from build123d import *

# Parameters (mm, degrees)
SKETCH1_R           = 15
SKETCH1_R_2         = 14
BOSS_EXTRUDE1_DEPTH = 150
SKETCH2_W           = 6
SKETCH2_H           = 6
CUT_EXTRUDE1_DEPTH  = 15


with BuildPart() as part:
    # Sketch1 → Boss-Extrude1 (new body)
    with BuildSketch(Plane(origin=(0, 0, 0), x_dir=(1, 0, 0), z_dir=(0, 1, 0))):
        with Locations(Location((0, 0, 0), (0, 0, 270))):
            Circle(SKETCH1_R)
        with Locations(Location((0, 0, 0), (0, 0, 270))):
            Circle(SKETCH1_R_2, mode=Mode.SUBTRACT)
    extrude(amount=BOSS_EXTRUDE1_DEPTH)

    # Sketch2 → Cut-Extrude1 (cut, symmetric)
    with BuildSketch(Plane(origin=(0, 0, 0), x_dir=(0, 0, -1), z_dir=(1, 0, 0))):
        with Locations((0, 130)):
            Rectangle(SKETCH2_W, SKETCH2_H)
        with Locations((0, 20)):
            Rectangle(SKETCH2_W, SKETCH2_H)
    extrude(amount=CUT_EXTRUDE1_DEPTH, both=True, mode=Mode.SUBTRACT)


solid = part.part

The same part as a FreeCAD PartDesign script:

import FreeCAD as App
import Part
import Sketcher
from FreeCAD import Vector

doc = App.newDocument("Part")
body = doc.addObject("PartDesign::Body", "Body")

sketch1 = body.newObject("Sketcher::SketchObject", "Sketch")
sketch1.AttachmentSupport = (doc.getObject("XZ_Plane"), [""])
sketch1.MapMode = "FlatFace"
sketch1.addGeometry([
    Part.Circle(Vector(0, 0, 0), Vector(0, 0, 1), 15),
    Part.Circle(Vector(0, 0, 0), Vector(0, 0, 1), 14),
], False)
sketch1.addConstraint([
    Sketcher.Constraint("Coincident", 0, 3, -1, 1),
    Sketcher.Constraint("Coincident", 1, 3, -1, 1),
    Sketcher.Constraint("Diameter", 0, 30.0),
    Sketcher.Constraint("Diameter", 1, 28.0),
])
pad1 = body.newObject("PartDesign::Pad", "Pad")
pad1.Profile = sketch1
pad1.Length = 150
pad1.Reversed = True

sketch2 = body.newObject("Sketcher::SketchObject", "Sketch001")
sketch2.AttachmentSupport = (doc.getObject("YZ_Plane"), [""])
sketch2.MapMode = "FlatFace"
sketch2.addGeometry([
    Part.LineSegment(Vector(133, 3, 0), Vector(127, 3, 0)),
    Part.LineSegment(Vector(127, 3, 0), Vector(127, -3, 0)),
    Part.LineSegment(Vector(127, -3, 0), Vector(133, -3, 0)),
    Part.LineSegment(Vector(133, -3, 0), Vector(133, 3, 0)),
    Part.LineSegment(Vector(23, 3, 0), Vector(17, 3, 0)),
    Part.LineSegment(Vector(17, 3, 0), Vector(17, -3, 0)),
    Part.LineSegment(Vector(17, -3, 0), Vector(23, -3, 0)),
    Part.LineSegment(Vector(23, -3, 0), Vector(23, 3, 0)),
], False)
sketch2.addConstraint([
    Sketcher.Constraint("Coincident", 0, 2, 1, 1),
    Sketcher.Constraint("Coincident", 1, 2, 2, 1),
    Sketcher.Constraint("Coincident", 2, 2, 3, 1),
    Sketcher.Constraint("Coincident", 3, 2, 0, 1),
    Sketcher.Constraint("Coincident", 4, 2, 5, 1),
    Sketcher.Constraint("Coincident", 5, 2, 6, 1),
    Sketcher.Constraint("Coincident", 6, 2, 7, 1),
    Sketcher.Constraint("Coincident", 7, 2, 4, 1),
    Sketcher.Constraint("Horizontal", 0),
    Sketcher.Constraint("Vertical", 1),
    Sketcher.Constraint("Horizontal", 2),
    Sketcher.Constraint("Vertical", 3),
    Sketcher.Constraint("Horizontal", 4),
    Sketcher.Constraint("Vertical", 5),
    Sketcher.Constraint("Horizontal", 6),
    Sketcher.Constraint("Vertical", 7),
    Sketcher.Constraint("Horizontal", 3, 2, 4, 2),
    Sketcher.Constraint("Horizontal", 2, 2, 5, 2),
    Sketcher.Constraint("Equal", 2, 4),
    Sketcher.Constraint("Equal", 6, 1),
    Sketcher.Constraint("DistanceX", 0, 2, 0, 1, 6.0),
    Sketcher.Constraint("DistanceX", -1, 1, 0, 2, 127.0),
    Sketcher.Constraint("DistanceY", -1, 1, 0, 2, 3.0),
    Sketcher.Constraint("DistanceX", -1, 1, 4, 2, 17.0),
])
pocket1 = body.newObject("PartDesign::Pocket", "Pocket")
pocket1.Profile = sketch2
pocket1.Length = 30
pocket1.Midplane = True

doc.recompute()
